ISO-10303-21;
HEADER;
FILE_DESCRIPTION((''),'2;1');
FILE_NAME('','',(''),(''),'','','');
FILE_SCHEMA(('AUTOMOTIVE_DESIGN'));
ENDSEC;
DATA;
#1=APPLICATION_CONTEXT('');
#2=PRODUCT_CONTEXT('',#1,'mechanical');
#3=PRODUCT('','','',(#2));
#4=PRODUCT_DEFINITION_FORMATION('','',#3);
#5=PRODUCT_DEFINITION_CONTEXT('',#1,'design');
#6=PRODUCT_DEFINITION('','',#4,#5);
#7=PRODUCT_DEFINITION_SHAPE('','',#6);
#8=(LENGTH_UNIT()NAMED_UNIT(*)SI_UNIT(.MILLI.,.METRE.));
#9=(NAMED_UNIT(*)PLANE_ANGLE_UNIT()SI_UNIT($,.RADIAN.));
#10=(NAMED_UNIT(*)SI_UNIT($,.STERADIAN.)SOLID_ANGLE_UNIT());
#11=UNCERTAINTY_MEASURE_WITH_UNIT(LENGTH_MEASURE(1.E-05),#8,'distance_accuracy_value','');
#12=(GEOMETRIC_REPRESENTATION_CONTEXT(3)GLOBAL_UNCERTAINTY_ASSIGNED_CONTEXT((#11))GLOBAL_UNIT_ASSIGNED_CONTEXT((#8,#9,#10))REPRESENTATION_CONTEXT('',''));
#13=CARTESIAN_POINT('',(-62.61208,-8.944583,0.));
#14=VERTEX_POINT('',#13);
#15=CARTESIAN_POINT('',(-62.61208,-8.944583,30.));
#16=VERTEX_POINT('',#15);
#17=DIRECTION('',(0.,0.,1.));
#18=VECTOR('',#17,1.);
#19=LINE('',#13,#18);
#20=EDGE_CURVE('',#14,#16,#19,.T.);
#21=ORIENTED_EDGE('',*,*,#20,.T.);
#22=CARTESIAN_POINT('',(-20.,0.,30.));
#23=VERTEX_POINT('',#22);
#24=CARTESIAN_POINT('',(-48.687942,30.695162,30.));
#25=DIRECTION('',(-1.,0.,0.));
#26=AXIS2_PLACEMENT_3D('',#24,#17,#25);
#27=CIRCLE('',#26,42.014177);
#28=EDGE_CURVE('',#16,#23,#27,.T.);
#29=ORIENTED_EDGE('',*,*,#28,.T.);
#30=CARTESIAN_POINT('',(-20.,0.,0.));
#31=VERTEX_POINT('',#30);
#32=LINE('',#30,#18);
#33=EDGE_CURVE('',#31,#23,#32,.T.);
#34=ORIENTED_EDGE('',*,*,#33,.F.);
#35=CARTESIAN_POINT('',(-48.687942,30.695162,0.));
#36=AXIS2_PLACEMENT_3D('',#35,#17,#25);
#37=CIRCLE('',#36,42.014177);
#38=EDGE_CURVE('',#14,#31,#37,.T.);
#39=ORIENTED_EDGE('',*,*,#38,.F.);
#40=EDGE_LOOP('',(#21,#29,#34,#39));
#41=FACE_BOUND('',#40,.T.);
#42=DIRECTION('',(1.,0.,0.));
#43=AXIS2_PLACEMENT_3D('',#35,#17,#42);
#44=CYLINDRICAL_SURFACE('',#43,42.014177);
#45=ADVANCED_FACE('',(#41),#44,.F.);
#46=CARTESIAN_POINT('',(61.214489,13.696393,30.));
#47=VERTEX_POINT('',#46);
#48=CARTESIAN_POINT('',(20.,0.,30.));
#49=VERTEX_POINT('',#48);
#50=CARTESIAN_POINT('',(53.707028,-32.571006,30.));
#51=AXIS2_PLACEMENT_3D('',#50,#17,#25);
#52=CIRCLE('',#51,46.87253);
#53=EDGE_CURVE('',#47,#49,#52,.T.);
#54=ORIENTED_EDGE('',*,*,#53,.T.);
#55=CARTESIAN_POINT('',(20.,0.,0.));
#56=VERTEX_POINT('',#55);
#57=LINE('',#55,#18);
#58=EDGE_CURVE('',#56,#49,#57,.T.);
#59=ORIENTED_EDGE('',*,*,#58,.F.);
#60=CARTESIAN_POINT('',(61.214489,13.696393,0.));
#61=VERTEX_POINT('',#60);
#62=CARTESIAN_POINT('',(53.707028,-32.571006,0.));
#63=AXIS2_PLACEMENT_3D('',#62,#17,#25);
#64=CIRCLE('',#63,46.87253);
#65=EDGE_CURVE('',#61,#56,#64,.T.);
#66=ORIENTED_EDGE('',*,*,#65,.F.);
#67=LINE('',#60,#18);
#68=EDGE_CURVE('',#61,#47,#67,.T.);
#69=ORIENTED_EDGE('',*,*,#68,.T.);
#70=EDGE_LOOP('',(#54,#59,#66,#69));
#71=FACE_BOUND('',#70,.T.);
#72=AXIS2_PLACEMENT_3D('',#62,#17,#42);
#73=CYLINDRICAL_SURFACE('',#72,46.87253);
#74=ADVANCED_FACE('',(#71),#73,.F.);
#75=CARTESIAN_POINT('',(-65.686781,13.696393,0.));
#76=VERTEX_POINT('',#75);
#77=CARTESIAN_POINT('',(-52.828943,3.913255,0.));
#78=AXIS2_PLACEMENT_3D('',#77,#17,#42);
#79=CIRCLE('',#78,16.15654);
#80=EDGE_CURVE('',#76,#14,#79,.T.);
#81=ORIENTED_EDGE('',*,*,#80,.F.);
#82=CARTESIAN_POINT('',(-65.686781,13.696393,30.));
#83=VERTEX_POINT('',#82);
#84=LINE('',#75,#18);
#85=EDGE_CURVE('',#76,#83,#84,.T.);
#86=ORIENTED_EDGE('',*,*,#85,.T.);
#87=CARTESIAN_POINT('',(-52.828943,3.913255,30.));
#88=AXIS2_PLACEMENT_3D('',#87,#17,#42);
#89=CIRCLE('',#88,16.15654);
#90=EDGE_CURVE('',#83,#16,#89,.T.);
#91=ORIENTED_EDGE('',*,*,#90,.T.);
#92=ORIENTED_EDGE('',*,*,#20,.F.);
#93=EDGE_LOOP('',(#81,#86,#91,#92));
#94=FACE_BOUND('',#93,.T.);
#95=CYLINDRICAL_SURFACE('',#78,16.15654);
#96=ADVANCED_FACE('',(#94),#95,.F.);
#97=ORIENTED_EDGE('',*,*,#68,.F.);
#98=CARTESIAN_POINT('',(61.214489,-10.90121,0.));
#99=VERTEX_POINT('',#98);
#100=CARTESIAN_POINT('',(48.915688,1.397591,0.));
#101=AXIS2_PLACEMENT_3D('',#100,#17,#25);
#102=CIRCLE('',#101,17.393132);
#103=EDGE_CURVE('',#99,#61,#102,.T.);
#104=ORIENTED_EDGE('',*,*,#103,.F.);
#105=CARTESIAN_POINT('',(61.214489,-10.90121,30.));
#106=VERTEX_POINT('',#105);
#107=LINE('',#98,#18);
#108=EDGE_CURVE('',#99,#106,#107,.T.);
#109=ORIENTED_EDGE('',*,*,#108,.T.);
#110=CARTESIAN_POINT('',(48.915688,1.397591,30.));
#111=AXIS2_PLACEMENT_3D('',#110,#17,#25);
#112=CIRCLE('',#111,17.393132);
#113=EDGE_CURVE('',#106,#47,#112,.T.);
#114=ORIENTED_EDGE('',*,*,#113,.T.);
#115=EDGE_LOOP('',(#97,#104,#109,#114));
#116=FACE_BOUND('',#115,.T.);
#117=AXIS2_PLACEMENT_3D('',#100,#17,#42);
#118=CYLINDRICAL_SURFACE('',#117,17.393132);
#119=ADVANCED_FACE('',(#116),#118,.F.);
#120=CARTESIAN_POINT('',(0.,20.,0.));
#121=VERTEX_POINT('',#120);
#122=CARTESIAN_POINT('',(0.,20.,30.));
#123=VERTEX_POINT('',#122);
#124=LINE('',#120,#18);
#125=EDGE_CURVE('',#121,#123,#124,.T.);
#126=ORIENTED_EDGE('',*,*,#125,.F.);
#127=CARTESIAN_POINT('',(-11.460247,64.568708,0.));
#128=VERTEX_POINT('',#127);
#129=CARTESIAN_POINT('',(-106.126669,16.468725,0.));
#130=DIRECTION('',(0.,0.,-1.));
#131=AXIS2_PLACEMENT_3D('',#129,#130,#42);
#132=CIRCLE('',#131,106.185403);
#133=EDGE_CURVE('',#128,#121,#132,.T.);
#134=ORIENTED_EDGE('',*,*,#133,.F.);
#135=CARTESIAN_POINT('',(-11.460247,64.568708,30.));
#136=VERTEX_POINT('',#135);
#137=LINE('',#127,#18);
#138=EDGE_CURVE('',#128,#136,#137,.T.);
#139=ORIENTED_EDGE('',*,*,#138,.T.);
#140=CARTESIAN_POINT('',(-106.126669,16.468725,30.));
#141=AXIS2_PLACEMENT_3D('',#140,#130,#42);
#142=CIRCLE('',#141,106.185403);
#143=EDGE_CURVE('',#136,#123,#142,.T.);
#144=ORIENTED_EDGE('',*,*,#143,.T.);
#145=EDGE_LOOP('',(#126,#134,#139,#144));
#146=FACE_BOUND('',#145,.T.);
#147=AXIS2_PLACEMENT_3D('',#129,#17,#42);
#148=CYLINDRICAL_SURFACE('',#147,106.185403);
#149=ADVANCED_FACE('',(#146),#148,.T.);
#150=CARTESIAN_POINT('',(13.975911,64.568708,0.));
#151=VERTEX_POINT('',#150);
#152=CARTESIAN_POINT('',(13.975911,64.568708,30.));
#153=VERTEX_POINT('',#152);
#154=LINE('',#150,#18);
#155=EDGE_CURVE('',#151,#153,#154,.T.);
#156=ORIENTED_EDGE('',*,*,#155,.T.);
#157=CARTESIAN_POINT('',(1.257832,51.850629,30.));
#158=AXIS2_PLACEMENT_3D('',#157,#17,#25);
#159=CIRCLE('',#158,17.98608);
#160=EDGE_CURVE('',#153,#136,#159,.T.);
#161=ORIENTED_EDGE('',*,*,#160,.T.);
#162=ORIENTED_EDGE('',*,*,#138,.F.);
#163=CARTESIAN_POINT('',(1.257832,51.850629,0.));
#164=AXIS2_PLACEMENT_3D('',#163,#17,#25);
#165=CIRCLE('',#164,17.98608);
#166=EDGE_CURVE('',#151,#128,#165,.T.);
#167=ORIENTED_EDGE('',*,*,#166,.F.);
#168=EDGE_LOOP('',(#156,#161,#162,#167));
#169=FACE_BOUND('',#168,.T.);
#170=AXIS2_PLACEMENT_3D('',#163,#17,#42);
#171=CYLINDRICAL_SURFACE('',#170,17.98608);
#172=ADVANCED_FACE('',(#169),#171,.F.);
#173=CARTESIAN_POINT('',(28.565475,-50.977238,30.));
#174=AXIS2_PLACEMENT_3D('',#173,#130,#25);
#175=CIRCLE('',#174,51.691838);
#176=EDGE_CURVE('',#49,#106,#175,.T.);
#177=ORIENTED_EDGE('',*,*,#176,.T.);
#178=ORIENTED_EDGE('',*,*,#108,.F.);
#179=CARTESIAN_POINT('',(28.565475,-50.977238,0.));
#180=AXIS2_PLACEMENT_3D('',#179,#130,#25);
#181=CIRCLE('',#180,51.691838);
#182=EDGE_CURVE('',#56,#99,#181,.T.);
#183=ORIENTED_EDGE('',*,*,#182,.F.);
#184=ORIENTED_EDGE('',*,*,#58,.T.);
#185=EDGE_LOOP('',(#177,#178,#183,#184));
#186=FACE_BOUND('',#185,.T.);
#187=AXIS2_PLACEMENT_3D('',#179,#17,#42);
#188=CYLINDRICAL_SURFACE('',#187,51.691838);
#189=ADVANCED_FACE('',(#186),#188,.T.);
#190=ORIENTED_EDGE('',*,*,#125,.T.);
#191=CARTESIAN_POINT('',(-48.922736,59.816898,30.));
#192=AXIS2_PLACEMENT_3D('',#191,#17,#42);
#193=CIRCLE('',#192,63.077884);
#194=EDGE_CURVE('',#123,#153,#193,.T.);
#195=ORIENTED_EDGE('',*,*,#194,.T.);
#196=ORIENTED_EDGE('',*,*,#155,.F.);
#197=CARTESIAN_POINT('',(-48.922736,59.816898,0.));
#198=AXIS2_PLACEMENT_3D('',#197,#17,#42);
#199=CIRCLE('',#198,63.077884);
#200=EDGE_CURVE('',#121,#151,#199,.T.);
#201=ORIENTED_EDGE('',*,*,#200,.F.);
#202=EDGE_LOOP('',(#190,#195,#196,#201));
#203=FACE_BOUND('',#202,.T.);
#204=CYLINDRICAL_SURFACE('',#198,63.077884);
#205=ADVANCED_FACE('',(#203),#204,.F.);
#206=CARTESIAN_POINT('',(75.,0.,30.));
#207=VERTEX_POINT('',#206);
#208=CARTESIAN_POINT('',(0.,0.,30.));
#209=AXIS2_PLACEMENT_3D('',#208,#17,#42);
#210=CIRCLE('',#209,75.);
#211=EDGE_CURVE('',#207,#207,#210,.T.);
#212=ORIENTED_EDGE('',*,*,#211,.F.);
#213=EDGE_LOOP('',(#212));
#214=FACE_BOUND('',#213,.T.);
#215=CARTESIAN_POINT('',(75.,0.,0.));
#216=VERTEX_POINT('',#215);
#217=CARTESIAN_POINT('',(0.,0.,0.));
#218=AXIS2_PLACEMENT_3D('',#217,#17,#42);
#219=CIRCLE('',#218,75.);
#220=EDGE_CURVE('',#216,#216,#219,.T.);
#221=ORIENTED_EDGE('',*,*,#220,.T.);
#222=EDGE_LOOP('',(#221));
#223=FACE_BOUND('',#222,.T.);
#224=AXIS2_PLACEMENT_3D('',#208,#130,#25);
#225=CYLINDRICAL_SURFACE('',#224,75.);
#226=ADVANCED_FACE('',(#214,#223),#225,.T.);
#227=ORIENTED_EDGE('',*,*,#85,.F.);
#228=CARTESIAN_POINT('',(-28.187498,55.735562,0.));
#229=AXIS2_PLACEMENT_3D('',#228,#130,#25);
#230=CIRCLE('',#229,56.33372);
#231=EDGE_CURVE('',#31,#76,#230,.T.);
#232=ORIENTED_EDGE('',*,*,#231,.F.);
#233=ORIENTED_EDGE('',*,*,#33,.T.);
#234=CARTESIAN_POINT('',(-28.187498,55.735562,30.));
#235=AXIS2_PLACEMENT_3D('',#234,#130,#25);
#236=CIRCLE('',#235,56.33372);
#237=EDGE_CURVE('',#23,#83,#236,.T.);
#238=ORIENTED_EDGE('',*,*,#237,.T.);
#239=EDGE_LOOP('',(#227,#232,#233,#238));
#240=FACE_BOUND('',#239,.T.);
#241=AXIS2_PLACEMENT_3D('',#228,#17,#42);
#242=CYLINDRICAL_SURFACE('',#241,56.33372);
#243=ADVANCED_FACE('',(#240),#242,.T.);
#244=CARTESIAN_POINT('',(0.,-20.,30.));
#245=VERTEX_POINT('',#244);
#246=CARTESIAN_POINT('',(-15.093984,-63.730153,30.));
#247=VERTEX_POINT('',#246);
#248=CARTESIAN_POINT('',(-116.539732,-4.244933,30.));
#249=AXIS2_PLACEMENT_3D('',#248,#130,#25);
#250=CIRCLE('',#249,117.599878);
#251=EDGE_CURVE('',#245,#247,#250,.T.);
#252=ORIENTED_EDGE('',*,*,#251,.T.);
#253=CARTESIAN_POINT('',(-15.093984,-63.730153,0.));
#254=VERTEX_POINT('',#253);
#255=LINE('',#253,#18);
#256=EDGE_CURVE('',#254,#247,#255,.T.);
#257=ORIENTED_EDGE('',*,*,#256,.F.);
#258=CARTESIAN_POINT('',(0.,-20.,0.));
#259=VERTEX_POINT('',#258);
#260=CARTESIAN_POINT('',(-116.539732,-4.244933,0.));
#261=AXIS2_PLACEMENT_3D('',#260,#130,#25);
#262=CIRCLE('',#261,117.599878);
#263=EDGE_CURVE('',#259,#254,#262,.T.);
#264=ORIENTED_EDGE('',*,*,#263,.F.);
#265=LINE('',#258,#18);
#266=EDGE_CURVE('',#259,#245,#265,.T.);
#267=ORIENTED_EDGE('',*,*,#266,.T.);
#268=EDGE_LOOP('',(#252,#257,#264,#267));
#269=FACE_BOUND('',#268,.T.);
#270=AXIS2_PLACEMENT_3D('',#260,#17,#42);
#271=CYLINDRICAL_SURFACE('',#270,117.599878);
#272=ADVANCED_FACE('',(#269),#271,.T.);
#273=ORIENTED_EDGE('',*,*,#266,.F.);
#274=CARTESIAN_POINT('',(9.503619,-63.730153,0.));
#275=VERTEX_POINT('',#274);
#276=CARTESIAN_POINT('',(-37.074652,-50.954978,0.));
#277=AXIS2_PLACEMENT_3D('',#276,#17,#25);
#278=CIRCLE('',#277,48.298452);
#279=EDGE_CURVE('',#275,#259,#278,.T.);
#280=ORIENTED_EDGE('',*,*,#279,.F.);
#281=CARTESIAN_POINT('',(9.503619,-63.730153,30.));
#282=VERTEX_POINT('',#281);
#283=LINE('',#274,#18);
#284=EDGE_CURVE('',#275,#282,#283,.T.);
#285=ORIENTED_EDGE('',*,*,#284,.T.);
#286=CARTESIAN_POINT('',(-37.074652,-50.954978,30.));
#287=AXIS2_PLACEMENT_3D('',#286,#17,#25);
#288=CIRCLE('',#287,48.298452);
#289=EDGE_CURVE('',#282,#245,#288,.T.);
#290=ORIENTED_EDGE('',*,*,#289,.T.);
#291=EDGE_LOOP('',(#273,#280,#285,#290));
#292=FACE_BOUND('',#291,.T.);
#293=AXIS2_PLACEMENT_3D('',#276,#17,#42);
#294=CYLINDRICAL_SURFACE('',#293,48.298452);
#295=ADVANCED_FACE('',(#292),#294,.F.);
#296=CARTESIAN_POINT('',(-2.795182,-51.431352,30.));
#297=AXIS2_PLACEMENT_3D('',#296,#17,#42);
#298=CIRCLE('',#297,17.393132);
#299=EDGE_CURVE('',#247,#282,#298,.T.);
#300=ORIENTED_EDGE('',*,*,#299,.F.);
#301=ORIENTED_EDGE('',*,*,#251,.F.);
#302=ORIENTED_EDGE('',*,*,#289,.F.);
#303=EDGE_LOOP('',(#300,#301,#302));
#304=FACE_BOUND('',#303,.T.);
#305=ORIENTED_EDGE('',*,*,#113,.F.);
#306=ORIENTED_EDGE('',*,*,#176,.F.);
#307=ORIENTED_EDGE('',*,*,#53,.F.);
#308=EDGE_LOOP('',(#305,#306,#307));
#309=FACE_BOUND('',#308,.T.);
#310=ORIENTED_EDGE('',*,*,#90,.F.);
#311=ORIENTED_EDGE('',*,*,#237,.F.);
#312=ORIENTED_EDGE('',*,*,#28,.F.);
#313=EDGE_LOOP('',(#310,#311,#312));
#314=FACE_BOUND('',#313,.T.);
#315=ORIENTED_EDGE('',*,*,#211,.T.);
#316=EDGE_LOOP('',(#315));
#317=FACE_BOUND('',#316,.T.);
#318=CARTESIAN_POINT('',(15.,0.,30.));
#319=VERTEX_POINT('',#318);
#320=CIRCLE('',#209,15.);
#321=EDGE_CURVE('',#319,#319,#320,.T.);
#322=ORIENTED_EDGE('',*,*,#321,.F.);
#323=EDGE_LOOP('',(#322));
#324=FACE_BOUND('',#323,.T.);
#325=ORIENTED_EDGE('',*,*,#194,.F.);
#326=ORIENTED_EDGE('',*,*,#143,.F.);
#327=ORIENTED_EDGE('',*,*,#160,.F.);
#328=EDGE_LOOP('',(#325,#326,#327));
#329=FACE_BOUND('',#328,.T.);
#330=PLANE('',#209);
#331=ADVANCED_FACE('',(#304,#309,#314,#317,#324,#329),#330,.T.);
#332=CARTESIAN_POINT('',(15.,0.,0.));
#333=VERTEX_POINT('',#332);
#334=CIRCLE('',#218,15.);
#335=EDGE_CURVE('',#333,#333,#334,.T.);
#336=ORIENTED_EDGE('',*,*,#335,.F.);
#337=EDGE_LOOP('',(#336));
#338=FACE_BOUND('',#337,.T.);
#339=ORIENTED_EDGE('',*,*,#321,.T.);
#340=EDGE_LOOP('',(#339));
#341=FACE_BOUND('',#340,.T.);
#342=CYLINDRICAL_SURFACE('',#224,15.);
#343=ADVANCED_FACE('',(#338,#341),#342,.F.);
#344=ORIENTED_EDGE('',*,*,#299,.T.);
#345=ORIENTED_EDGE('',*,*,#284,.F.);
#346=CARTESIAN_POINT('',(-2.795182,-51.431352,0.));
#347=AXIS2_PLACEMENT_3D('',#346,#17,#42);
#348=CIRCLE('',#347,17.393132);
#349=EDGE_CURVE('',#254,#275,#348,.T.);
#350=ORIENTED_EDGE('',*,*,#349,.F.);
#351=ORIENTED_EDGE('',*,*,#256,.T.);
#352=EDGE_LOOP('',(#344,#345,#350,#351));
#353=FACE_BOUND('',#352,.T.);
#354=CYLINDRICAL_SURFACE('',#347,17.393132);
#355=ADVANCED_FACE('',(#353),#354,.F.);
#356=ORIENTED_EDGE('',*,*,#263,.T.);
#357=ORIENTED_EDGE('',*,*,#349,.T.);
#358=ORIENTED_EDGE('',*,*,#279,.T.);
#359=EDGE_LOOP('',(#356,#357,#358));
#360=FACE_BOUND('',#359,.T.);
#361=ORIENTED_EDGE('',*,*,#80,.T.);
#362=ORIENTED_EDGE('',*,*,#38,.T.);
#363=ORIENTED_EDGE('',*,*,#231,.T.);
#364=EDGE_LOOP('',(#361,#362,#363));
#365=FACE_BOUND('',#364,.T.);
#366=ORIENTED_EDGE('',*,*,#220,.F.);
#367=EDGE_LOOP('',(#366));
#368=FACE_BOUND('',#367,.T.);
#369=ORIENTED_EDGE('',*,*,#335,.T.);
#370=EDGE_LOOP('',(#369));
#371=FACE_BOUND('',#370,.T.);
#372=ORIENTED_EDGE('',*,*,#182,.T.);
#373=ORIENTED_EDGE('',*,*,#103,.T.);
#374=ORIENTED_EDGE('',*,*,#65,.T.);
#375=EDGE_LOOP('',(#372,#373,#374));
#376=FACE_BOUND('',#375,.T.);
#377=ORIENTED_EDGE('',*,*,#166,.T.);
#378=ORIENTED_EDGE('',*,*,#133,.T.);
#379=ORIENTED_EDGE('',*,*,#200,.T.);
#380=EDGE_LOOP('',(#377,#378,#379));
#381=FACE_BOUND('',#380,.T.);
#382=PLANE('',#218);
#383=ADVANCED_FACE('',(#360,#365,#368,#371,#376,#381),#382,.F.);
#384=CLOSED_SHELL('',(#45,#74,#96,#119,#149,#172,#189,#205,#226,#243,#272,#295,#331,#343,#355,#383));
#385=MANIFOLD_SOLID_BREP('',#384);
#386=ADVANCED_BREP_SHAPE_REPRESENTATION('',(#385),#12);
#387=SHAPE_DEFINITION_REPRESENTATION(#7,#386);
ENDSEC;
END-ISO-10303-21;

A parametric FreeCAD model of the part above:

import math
import FreeCAD as App
import Part
import Sketcher
from FreeCAD import Vector
Q = App.Units.Quantity

doc = App.newDocument("Part")
body = doc.addObject("PartDesign::Body", "Body")

sketch1 = body.newObject("Sketcher::SketchObject", "Sketch")
sketch1.AttachmentSupport = (doc.getObject("XY_Plane"), [""])
sketch1.MapMode = "FlatFace"
sketch1.addGeometry(Part.Circle(Vector(0, 0, 0), Vector(0, 0, 1), 75), False)
sketch1.addGeometry(Part.Circle(Vector(0, 0, 0), Vector(0, 0, 1), 15), False)
sketch1.addConstraint(Sketcher.Constraint("Coincident", 0, 3, -1, 1))
sketch1.addConstraint(Sketcher.Constraint("Coincident", 1, 3, -1, 1))
sketch1.addConstraint(Sketcher.Constraint("Diameter", 0, Q("150 mm")))
sketch1.addConstraint(Sketcher.Constraint("Diameter", 1, Q("30 mm")))
pad1 = body.newObject("PartDesign::Pad", "Pad")
pad1.Profile = sketch1
pad1.Length = 30

sketch2 = body.newObject("Sketcher::SketchObject", "Sketch001")
sketch2.AttachmentSupport = (doc.getObject("XY_Plane"), [""])
sketch2.MapMode = "FlatFace"
sketch2.AttachmentOffset = App.Placement(Vector(0, 0, 30), App.Rotation())
sketch2.addGeometry(Part.ArcOfCircle(Part.Circle(Vector(28.565475, -50.977238, 0), Vector(0, 0, 1), 51.691838), math.radians(50.831091), math.radians(99.538055)), False)
sketch2.addGeometry(Part.ArcOfCircle(Part.Circle(Vector(48.915688, 1.397591, 0), Vector(0, 0, 1), 17.393132), math.radians(-45), math.radians(45)), False)
sketch2.addGeometry(Part.ArcOfCircle(Part.Circle(Vector(53.707028, -32.571006, 0), Vector(0, 0, 1), 46.87253), math.radians(80.783374), math.radians(135.981968)), False)
sketch2.addGeometry(Part.ArcOfCircle(Part.Circle(Vector(-48.922736, 59.816898, 0), Vector(0, 0, 1), 63.077884), math.radians(-39.141215), math.radians(4.320323)), False)
sketch2.addGeometry(Part.ArcOfCircle(Part.Circle(Vector(1.257832, 51.850629, 0), Vector(0, 0, 1), 17.98608), math.radians(45), math.radians(135)), False)
sketch2.addGeometry(Part.ArcOfCircle(Part.Circle(Vector(-106.126669, 16.468725, 0), Vector(0, 0, 1), 106.185403), math.radians(1.905765), math.radians(26.935111)), False)
sketch2.addGeometry(Part.ArcOfCircle(Part.Circle(Vector(-48.687942, 30.695162, 0), Vector(0, 0, 1), 42.014177), math.radians(-109.354697), math.radians(-46.935929)), False)
sketch2.addGeometry(Part.ArcOfCircle(Part.Circle(Vector(-28.187498, 55.735562, 0), Vector(0, 0, 1), 56.33372), math.radians(-131.733223), math.radians(-81.643078)), False)
sketch2.addGeometry(Part.ArcOfCircle(Part.Circle(Vector(-52.828943, 3.913255, 0), Vector(0, 0, 1), 16.15654), math.radians(142.733598), math.radians(232.733598)), False)
sketch2.addGeometry(Part.ArcOfCircle(Part.Circle(Vector(-37.074652, -50.954978, 0), Vector(0, 0, 1), 48.298452), math.radians(-15.337534), math.radians(39.859735)), False)
sketch2.addGeometry(Part.ArcOfCircle(Part.Circle(Vector(-116.539732, -4.244933, 0), Vector(0, 0, 1), 117.599878), math.radians(-30.386281), math.radians(-7.699168)), False)
sketch2.addGeometry(Part.ArcOfCircle(Part.Circle(Vector(-2.795182, -51.431352, 0), Vector(0, 0, 1), 17.393132), math.radians(-135), math.radians(-45)), False)
sketch2.addConstraint(Sketcher.Constraint("Coincident", 0, 1, 1, 1))
sketch2.addConstraint(Sketcher.Constraint("Coincident", 1, 2, 2, 1))
sketch2.addConstraint(Sketcher.Constraint("Coincident", 2, 2, 0, 2))
sketch2.addConstraint(Sketcher.Constraint("Coincident", 3, 2, 4, 1))
sketch2.addConstraint(Sketcher.Constraint("Coincident", 4, 2, 5, 2))
sketch2.addConstraint(Sketcher.Constraint("Coincident", 5, 1, 3, 1))
sketch2.addConstraint(Sketcher.Constraint("Coincident", 6, 2, 7, 2))
sketch2.addConstraint(Sketcher.Constraint("Coincident", 7, 1, 8, 1))
sketch2.addConstraint(Sketcher.Constraint("Coincident", 8, 2, 6, 1))
sketch2.addConstraint(Sketcher.Constraint("Coincident", 9, 2, 10, 2))
sketch2.addConstraint(Sketcher.Constraint("Coincident", 10, 1, 11, 1))
sketch2.addConstraint(Sketcher.Constraint("Coincident", 11, 2, 9, 1))
sketch2.addConstraint(Sketcher.Constraint("PointOnObject", 2, 2, -1))
sketch2.addConstraint(Sketcher.Constraint("PointOnObject", 5, 1, -2))
sketch2.addConstraint(Sketcher.Constraint("PointOnObject", 6, 2, -1))
sketch2.addConstraint(Sketcher.Constraint("PointOnObject", 9, 2, -2))
sketch2.addConstraint(Sketcher.Constraint("DistanceX", -1, 1, 2, 2, Q("20 mm")))
sketch2.addConstraint(Sketcher.Constraint("DistanceY", -1, 1, 5, 1, Q("20 mm")))
sketch2.addConstraint(Sketcher.Constraint("DistanceX", 6, 2, -1, 1, Q("20 mm")))
sketch2.addConstraint(Sketcher.Constraint("DistanceY", 9, 2, -1, 1, Q("20 mm")))
sketch2.addConstraint(Sketcher.Constraint("Radius", 1, Q("17.393132 mm")))
sketch2.addConstraint(Sketcher.Constraint("Radius", 2, Q("46.87253 mm")))
sketch2.addConstraint(Sketcher.Constraint("Radius", 4, Q("17.98608 mm")))
sketch2.addConstraint(Sketcher.Constraint("Radius", 7, Q("56.33372 mm")))
sketch2.addConstraint(Sketcher.Constraint("Radius", 8, Q("16.15654 mm")))
sketch2.addConstraint(Sketcher.Constraint("Radius", 10, Q("117.599878 mm")))
sketch2.addConstraint(Sketcher.Constraint("Radius", 11, Q("17.393132 mm")))
sketch2.addConstraint(Sketcher.Constraint("Radius", 0, Q("51.691838 mm")))
sketch2.addConstraint(Sketcher.Constraint("Radius", 3, Q("63.077884 mm")))
sketch2.addConstraint(Sketcher.Constraint("Radius", 5, Q("106.185403 mm")))
sketch2.addConstraint(Sketcher.Constraint("Radius", 6, Q("42.014177 mm")))
sketch2.addConstraint(Sketcher.Constraint("Radius", 9, Q("48.298452 mm")))
sketch2.addConstraint(Sketcher.Constraint("DistanceX", 8, 3, 6, 3, Q("4.141 mm")))
sketch2.addConstraint(Sketcher.Constraint("DistanceY", -1, 1, 3, 3, Q("59.816898 mm")))
sketch2.addConstraint(Sketcher.Constraint("DistanceX", 5, 3, 4, 3, Q("107.384501 mm")))
sketch2.addConstraint(Sketcher.Constraint("DistanceY", 0, 3, 6, 3, Q("81.6724 mm")))
sketch2.addConstraint(Sketcher.Constraint("DistanceY", 6, 3, 7, 3, Q("25.040399 mm")))
sketch2.addConstraint(Sketcher.Constraint("DistanceX", 1, 3, 0, 1, Q("12.298801 mm")))
sketch2.addConstraint(Sketcher.Constraint("DistanceX", 1, 3, 1, 2, Q("12.298801 mm")))
sketch2.addConstraint(Sketcher.Constraint("DistanceY", 2, 3, 1, 2, Q("46.267398 mm")))
sketch2.addConstraint(Sketcher.Constraint("DistanceX", 7, 1, 8, 2, Q("3.0747 mm")))
sketch2.addConstraint(Sketcher.Constraint("DistanceX", 10, 1, 11, 3, Q("12.298801 mm")))
sketch2.addConstraint(Sketcher.Constraint("DistanceX", 11, 3, 11, 2, Q("12.298801 mm")))
sketch2.addConstraint(Sketcher.Constraint("DistanceY", -1, 1, 1, 3, Q("1.397591 mm")))
sketch2.addConstraint(Sketcher.Constraint("DistanceX", -1, 1, 4, 3, Q("1.257832 mm")))
sketch2.addConstraint(Sketcher.Constraint("DistanceY", -1, 1, 4, 3, Q("51.850629 mm")))
sketch2.addConstraint(Sketcher.Constraint("DistanceY", 11, 3, -1, 1, Q("51.431352 mm")))
sketch2.addConstraint(Sketcher.Constraint("DistanceX", -1, 1, 11, 2, Q("9.503619 mm")))
pocket1 = body.newObject("PartDesign::Pocket", "Pocket")
pocket1.Profile = sketch2
pocket1.Length = 30

doc.recompute()
